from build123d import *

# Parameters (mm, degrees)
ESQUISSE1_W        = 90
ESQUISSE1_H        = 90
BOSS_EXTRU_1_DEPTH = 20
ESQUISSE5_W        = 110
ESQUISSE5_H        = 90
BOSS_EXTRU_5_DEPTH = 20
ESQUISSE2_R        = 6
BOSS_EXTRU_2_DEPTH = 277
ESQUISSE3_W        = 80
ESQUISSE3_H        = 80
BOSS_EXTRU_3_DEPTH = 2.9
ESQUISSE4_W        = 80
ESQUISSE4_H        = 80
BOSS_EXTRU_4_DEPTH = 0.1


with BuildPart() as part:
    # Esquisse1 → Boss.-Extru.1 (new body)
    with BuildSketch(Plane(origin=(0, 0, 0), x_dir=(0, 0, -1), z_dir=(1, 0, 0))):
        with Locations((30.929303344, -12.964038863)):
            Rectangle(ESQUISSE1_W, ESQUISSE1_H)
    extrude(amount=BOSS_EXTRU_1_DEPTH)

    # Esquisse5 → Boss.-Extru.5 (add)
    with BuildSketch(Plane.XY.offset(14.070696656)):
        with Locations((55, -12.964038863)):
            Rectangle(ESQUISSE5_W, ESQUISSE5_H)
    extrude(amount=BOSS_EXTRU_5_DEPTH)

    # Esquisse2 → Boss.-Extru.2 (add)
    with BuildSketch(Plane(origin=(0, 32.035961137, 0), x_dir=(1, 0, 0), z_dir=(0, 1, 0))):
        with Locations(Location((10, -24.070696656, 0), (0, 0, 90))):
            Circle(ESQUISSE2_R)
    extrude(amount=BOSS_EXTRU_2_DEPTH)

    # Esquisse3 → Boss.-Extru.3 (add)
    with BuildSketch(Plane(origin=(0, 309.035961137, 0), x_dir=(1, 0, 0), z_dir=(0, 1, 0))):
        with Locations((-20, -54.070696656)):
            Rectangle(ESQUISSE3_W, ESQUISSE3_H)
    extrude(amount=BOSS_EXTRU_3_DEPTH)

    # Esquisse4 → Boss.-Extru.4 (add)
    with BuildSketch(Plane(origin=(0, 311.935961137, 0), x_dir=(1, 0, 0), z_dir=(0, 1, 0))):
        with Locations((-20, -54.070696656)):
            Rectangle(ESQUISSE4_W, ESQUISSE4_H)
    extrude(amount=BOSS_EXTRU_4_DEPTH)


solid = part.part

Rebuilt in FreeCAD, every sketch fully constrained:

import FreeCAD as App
import Part
import Sketcher
Q = App.Units.Quantity

doc = App.newDocument("Part")
body = doc.addObject("PartDesign::Body", "Body")

sketch1 = doc.addObject("Sketcher::SketchObject", "Sketch")
body.addObject(sketch1)
sketch1.AttachmentSupport = (doc.YZ_Plane, [""])
sketch1.MapMode = "FlatFace"
sketch1.addGeometry([
    Part.LineSegment(App.Vector(32, 14, 0), App.Vector(-58, 14, 0)),
    Part.LineSegment(App.Vector(-58, 14, 0), App.Vector(-58, -76, 0)),
    Part.LineSegment(App.Vector(-58, -76, 0), App.Vector(32, -76, 0)),
    Part.LineSegment(App.Vector(32, -76, 0), App.Vector(32, 14, 0)),
], False)
sketch1.addConstraint([
    Sketcher.Constraint("Coincident", 0, 2, 1, 1),
    Sketcher.Constraint("Coincident", 1, 2, 2, 1),
    Sketcher.Constraint("Coincident", 2, 2, 3, 1),
    Sketcher.Constraint("Coincident", 3, 2, 0, 1),
    Sketcher.Constraint("Horizontal", 0),
    Sketcher.Constraint("Vertical", 1),
    Sketcher.Constraint("Horizontal", 2),
    Sketcher.Constraint("Vertical", 3),
    Sketcher.Constraint("Equal", 2, 1),
    Sketcher.Constraint("DistanceX", 0, 2, 0, 1, Q("90 mm")),
    Sketcher.Constraint("DistanceX", 0, 2, -1, 1, Q("57.964039 mm")),
    Sketcher.Constraint("DistanceY", -1, 1, 0, 2, Q("14.070697 mm")),
])
pad1 = doc.addObject("PartDesign::Pad", "Pad")
body.addObject(pad1)
pad1.Profile = sketch1
pad1.Length = 20

sketch2 = doc.addObject("Sketcher::SketchObject", "Sketch001")
body.addObject(sketch2)
sketch2.AttachmentSupport = (doc.XY_Plane, [""])
sketch2.MapMode = "FlatFace"
sketch2.AttachmentOffset = App.Placement(App.Vector(0, 0, 14.070697), App.Rotation())
sketch2.addGeometry([
    Part.LineSegment(App.Vector(0, 32, 0), App.Vector(0, -58, 0)),
    Part.LineSegment(App.Vector(0, -58, 0), App.Vector(110, -58, 0)),
    Part.LineSegment(App.Vector(110, -58, 0), App.Vector(110, 32, 0)),
    Part.LineSegment(App.Vector(110, 32, 0), App.Vector(0, 32, 0)),
], False)
sketch2.addConstraint([
    Sketcher.Constraint("Coincident", 0, 2, 1, 1),
    Sketcher.Constraint("Coincident", 1, 2, 2, 1),
    Sketcher.Constraint("Coincident", 2, 2, 3, 1),
    Sketcher.Constraint("Coincident", 3, 2, 0, 1),
    Sketcher.Constraint("Vertical", 0),
    Sketcher.Constraint("Horizontal", 1),
    Sketcher.Constraint("Vertical", 2),
    Sketcher.Constraint("Horizontal", 3),
    Sketcher.Constraint("PointOnObject", 0, 2, -2),
    Sketcher.Constraint("DistanceX", 1, 1, 1, 2, Q("110 mm")),
    Sketcher.Constraint("DistanceY", 0, 2, 0, 1, Q("90 mm")),
    Sketcher.Constraint("DistanceY", 0, 2, -1, 1, Q("57.964039 mm")),
])
pad2 = doc.addObject("PartDesign::Pad", "Pad001")
body.addObject(pad2)
pad2.Profile = sketch2
pad2.Length = 20

sketch3 = doc.addObject("Sketcher::SketchObject", "Sketch002")
body.addObject(sketch3)
sketch3.AttachmentSupport = (doc.XZ_Plane, [""])
sketch3.MapMode = "FlatFace"
sketch3.AttachmentOffset = App.Placement(App.Vector(0, 0, -32.035961), App.Rotation())
sketch3.addGeometry(Part.Circle(App.Vector(10, 24, 0), App.Vector(0, 0, 1), 6), False)
sketch3.addConstraint([
    Sketcher.Constraint("Diameter", 0, Q("12 mm")),
    Sketcher.Constraint("DistanceX", -1, 1, 0, 3, Q("10 mm")),
    Sketcher.Constraint("DistanceY", -1, 1, 0, 3, Q("24.070697 mm")),
])
pad3 = doc.addObject("PartDesign::Pad", "Pad002")
body.addObject(pad3)
pad3.Profile = sketch3
pad3.Length = 277
pad3.Reversed = True

sketch4 = doc.addObject("Sketcher::SketchObject", "Sketch003")
body.addObject(sketch4)
sketch4.AttachmentSupport = (doc.XZ_Plane, [""])
sketch4.MapMode = "FlatFace"
sketch4.AttachmentOffset = App.Placement(App.Vector(0, 0, -309.035961), App.Rotation())
sketch4.addGeometry([
    Part.LineSegment(App.Vector(-60, 14, 0), App.Vector(-60, 94, 0)),
    Part.LineSegment(App.Vector(-60, 94, 0), App.Vector(20, 94, 0)),
    Part.LineSegment(App.Vector(20, 94, 0), App.Vector(20, 14, 0)),
    Part.LineSegment(App.Vector(20, 14, 0), App.Vector(-60, 14, 0)),
], False)
sketch4.addConstraint([
    Sketcher.Constraint("Coincident", 0, 2, 1, 1),
    Sketcher.Constraint("Coincident", 1, 2, 2, 1),
    Sketcher.Constraint("Coincident", 2, 2, 3, 1),
    Sketcher.Constraint("Coincident", 3, 2, 0, 1),
    Sketcher.Constraint("Vertical", 0),
    Sketcher.Constraint("Horizontal", 1),
    Sketcher.Constraint("Vertical", 2),
    Sketcher.Constraint("Horizontal", 3),
    Sketcher.Constraint("Equal", 3, 0),
    Sketcher.Constraint("DistanceX", 1, 1, 1, 2, Q("80 mm")),
    Sketcher.Constraint("DistanceX", 0, 2, -1, 1, Q("60 mm")),
    Sketcher.Constraint("DistanceY", -1, 1, 0, 2, Q("94.070697 mm")),
])
pad4 = doc.addObject("PartDesign::Pad", "Pad003")
body.addObject(pad4)
pad4.Profile = sketch4
pad4.Length = 2.9
pad4.Reversed = True

sketch5 = doc.addObject("Sketcher::SketchObject", "Sketch004")
body.addObject(sketch5)
sketch5.AttachmentSupport = (doc.XZ_Plane, [""])
sketch5.MapMode = "FlatFace"
sketch5.AttachmentOffset = App.Placement(App.Vector(0, 0, -311.935961), App.Rotation())
sketch5.addGeometry([
    Part.LineSegment(App.Vector(-60, 14, 0), App.Vector(-60, 94, 0)),
    Part.LineSegment(App.Vector(-60, 94, 0), App.Vector(20, 94, 0)),
    Part.LineSegment(App.Vector(20, 94, 0), App.Vector(20, 14, 0)),
    Part.LineSegment(App.Vector(20, 14, 0), App.Vector(-60, 14, 0)),
], False)
sketch5.addConstraint([
    Sketcher.Constraint("Coincident", 0, 2, 1, 1),
    Sketcher.Constraint("Coincident", 1, 2, 2, 1),
    Sketcher.Constraint("Coincident", 2, 2, 3, 1),
    Sketcher.Constraint("Coincident", 3, 2, 0, 1),
    Sketcher.Constraint("Vertical", 0),
    Sketcher.Constraint("Horizontal", 1),
    Sketcher.Constraint("Vertical", 2),
    Sketcher.Constraint("Horizontal", 3),
    Sketcher.Constraint("Equal", 3, 0),
    Sketcher.Constraint("DistanceX", 1, 1, 1, 2, Q("80 mm")),
    Sketcher.Constraint("DistanceX", 0, 2, -1, 1, Q("60 mm")),
    Sketcher.Constraint("DistanceY", -1, 1, 0, 2, Q("94.070697 mm")),
])
pad5 = doc.addObject("PartDesign::Pad", "Pad004")
body.addObject(pad5)
pad5.Profile = sketch5
pad5.Length = 0.1
pad5.Reversed = True

doc.recompute()
